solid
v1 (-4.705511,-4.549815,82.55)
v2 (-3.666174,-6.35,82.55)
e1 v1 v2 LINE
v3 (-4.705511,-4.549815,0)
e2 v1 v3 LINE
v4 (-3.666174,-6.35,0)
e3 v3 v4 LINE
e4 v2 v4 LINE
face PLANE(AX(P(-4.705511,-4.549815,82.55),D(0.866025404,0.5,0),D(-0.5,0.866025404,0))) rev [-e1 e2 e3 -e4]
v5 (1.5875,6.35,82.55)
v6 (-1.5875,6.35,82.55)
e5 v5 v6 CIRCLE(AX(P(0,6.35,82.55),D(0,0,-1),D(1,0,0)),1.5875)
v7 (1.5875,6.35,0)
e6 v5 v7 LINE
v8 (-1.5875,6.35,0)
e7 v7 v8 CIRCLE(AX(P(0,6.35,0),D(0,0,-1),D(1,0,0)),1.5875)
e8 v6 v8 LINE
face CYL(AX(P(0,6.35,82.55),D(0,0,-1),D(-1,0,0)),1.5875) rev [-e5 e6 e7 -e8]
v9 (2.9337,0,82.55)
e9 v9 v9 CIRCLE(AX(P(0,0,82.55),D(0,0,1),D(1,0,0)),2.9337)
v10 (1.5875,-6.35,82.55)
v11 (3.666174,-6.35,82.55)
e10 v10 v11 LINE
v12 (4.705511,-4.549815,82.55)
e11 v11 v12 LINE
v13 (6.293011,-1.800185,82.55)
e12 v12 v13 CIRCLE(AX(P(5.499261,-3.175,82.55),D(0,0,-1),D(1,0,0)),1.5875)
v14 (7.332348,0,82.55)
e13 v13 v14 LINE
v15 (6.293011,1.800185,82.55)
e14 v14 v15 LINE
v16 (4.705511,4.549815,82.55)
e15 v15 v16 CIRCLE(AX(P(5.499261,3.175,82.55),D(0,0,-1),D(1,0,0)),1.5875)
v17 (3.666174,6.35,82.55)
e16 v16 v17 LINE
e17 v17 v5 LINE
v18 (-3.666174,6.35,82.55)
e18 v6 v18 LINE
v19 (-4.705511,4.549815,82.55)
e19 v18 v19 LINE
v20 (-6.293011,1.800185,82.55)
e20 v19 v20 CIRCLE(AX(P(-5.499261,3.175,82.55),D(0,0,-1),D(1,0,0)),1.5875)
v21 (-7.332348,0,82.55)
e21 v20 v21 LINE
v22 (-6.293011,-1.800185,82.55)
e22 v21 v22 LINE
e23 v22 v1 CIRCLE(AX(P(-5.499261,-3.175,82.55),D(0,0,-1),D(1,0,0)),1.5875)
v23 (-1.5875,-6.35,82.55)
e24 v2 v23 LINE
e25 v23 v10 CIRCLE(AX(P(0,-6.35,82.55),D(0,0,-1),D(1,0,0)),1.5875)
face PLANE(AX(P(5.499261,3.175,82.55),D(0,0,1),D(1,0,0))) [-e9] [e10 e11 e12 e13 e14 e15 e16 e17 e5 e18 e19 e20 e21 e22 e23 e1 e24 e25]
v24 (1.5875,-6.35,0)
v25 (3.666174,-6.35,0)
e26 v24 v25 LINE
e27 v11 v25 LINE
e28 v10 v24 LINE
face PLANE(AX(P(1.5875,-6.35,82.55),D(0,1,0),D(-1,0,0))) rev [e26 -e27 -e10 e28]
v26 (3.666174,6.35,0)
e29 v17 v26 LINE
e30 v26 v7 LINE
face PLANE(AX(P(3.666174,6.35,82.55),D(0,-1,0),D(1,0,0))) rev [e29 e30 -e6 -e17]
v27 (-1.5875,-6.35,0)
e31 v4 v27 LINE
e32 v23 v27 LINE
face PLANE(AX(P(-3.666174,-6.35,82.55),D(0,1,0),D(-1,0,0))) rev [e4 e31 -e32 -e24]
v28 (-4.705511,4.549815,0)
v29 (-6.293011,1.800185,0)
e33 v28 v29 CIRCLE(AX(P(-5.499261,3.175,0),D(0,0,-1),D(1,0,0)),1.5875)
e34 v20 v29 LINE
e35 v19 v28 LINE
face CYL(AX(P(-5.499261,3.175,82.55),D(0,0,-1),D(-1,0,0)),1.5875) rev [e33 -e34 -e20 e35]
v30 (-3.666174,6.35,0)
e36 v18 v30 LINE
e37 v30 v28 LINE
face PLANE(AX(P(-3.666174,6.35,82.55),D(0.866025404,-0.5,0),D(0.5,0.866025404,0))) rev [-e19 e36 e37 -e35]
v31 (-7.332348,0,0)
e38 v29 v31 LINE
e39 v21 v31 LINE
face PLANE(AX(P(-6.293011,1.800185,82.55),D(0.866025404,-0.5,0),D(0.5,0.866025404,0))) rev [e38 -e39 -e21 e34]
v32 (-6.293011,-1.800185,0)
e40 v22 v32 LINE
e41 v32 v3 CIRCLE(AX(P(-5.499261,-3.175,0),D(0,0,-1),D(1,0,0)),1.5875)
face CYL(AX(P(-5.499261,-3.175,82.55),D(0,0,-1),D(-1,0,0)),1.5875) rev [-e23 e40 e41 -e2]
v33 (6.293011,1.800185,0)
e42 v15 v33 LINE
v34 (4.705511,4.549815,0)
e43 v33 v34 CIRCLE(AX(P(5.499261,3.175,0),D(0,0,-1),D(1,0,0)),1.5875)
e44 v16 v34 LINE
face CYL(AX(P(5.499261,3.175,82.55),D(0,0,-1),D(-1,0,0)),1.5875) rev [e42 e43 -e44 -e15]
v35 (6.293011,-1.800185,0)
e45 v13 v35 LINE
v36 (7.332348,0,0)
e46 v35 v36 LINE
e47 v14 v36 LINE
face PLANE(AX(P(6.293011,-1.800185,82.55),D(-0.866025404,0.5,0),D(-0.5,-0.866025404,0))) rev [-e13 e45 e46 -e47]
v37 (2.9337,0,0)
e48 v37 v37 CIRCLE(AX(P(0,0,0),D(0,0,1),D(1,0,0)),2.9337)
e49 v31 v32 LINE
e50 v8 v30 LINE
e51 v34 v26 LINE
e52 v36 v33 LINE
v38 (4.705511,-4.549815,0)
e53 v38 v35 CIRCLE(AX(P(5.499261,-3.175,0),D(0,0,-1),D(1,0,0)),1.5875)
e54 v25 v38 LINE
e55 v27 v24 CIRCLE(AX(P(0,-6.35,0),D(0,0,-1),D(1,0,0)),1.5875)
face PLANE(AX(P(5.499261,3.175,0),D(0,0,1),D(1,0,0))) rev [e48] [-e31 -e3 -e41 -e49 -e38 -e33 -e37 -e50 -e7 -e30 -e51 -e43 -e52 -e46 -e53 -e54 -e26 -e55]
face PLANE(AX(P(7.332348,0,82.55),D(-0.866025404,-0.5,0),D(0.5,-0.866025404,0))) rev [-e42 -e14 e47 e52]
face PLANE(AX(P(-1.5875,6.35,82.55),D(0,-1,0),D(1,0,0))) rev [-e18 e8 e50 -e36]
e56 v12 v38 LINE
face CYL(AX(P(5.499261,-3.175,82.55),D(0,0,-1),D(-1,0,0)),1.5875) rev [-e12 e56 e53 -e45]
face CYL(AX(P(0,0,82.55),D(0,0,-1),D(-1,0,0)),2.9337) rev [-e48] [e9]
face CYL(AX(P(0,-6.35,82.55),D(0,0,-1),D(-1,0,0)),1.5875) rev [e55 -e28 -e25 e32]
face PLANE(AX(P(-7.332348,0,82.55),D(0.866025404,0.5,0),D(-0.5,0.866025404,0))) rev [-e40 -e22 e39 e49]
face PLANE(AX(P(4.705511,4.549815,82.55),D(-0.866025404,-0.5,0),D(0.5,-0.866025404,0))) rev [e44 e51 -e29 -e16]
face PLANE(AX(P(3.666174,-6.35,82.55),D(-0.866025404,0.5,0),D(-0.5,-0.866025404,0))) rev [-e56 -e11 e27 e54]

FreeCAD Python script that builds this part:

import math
import FreeCAD as App
import Part
import Sketcher

V = App.Vector
Q = App.Units.Quantity

doc = App.newDocument("Part")
body = doc.addObject("PartDesign::Body", "Body")

# Sketch on XY plane
sketch1 = doc.addObject("Sketcher::SketchObject", "Sketch")
body.addObject(sketch1)
sketch1.AttachmentSupport = (doc.XY_Plane, [""])
sketch1.MapMode = "FlatFace"
sketch1.addGeometry(Part.LineSegment(V(-4.705511, -4.549815, 0), V(-3.666174, -6.35, 0)), False)
sketch1.addGeometry(Part.LineSegment(V(-3.666174, -6.35, 0), V(-1.5875, -6.35, 0)), False)
sketch1.addGeometry(Part.ArcOfCircle(Part.Circle(V(0, -6.35, 0), V(0, 0, 1), 1.5875), math.radians(0), math.radians(180)), False)
sketch1.addGeometry(Part.LineSegment(V(1.5875, -6.35, 0), V(3.666174, -6.35, 0)), False)
sketch1.addGeometry(Part.LineSegment(V(3.666174, -6.35, 0), V(4.705511, -4.549815, 0)), False)
sketch1.addGeometry(Part.ArcOfCircle(Part.Circle(V(5.499261, -3.175, 0), V(0, 0, 1), 1.5875), math.radians(60), math.radians(240)), False)
sketch1.addGeometry(Part.LineSegment(V(6.293011, -1.800185, 0), V(7.332348, 0, 0)), False)
sketch1.addGeometry(Part.LineSegment(V(7.332348, 0, 0), V(6.293011, 1.800185, 0)), False)
sketch1.addGeometry(Part.ArcOfCircle(Part.Circle(V(5.499261, 3.175, 0), V(0, 0, 1), 1.5875), math.radians(120), math.radians(300)), False)
sketch1.addGeometry(Part.LineSegment(V(4.705511, 4.549815, 0), V(3.666174, 6.35, 0)), False)
sketch1.addGeometry(Part.LineSegment(V(3.666174, 6.35, 0), V(1.5875, 6.35, 0)), False)
sketch1.addGeometry(Part.ArcOfCircle(Part.Circle(V(0, 6.35, 0), V(0, 0, 1), 1.5875), math.radians(180), math.radians(360)), False)
sketch1.addGeometry(Part.LineSegment(V(-1.5875, 6.35, 0), V(-3.666174, 6.35, 0)), False)
sketch1.addGeometry(Part.LineSegment(V(-3.666174, 6.35, 0), V(-4.705511, 4.549815, 0)), False)
sketch1.addGeometry(Part.ArcOfCircle(Part.Circle(V(-5.499261, 3.175, 0), V(0, 0, 1), 1.5875), math.radians(-120), math.radians(60)), False)
sketch1.addGeometry(Part.LineSegment(V(-6.293011, 1.800185, 0), V(-7.332348, 0, 0)), False)
sketch1.addGeometry(Part.LineSegment(V(-7.332348, 0, 0), V(-6.293011, -1.800185, 0)), False)
sketch1.addGeometry(Part.ArcOfCircle(Part.Circle(V(-5.499261, -3.175, 0), V(0, 0, 1), 1.5875), math.radians(-60), math.radians(120)), False)
sketch1.addGeometry(Part.Circle(V(0, 0, 0), V(0, 0, 1), 2.9337), False)
sketch1.addConstraint(Sketcher.Constraint("Coincident", 0, 2, 1, 1))
sketch1.addConstraint(Sketcher.Constraint("Coincident", 1, 2, 2, 2))
sketch1.addConstraint(Sketcher.Constraint("Coincident", 2, 1, 3, 1))
sketch1.addConstraint(Sketcher.Constraint("Coincident", 3, 2, 4, 1))
sketch1.addConstraint(Sketcher.Constraint("Coincident", 4, 2, 5, 2))
sketch1.addConstraint(Sketcher.Constraint("Coincident", 5, 1, 6, 1))
sketch1.addConstraint(Sketcher.Constraint("Coincident", 6, 2, 7, 1))
sketch1.addConstraint(Sketcher.Constraint("Coincident", 7, 2, 8, 2))
sketch1.addConstraint(Sketcher.Constraint("Coincident", 8, 1, 9, 1))
sketch1.addConstraint(Sketcher.Constraint("Coincident", 9, 2, 10, 1))
sketch1.addConstraint(Sketcher.Constraint("Coincident", 10, 2, 11, 2))
sketch1.addConstraint(Sketcher.Constraint("Coincident", 11, 1, 12, 1))
sketch1.addConstraint(Sketcher.Constraint("Coincident", 12, 2, 13, 1))
sketch1.addConstraint(Sketcher.Constraint("Coincident", 13, 2, 14, 2))
sketch1.addConstraint(Sketcher.Constraint("Coincident", 14, 1, 15, 1))
sketch1.addConstraint(Sketcher.Constraint("Coincident", 15, 2, 16, 1))
sketch1.addConstraint(Sketcher.Constraint("Coincident", 16, 2, 17, 2))
sketch1.addConstraint(Sketcher.Constraint("Coincident", 17, 1, 0, 1))
sketch1.addConstraint(Sketcher.Constraint("Horizontal", 1))
sketch1.addConstraint(Sketcher.Constraint("Horizontal", 3))
sketch1.addConstraint(Sketcher.Constraint("Horizontal", 10))
sketch1.addConstraint(Sketcher.Constraint("Horizontal", 12))
sketch1.addConstraint(Sketcher.Constraint("Coincident", 18, 3, -1, 1))
sketch1.addConstraint(Sketcher.Constraint("Equal", 2, 5))
sketch1.addConstraint(Sketcher.Constraint("Equal", 5, 8))
sketch1.addConstraint(Sketcher.Constraint("Equal", 8, 11))
sketch1.addConstraint(Sketcher.Constraint("Equal", 11, 14))
sketch1.addConstraint(Sketcher.Constraint("Equal", 14, 17))
sketch1.addConstraint(Sketcher.Constraint("Symmetric", 2, 3, 11, 3, -1, 1))
sketch1.addConstraint(Sketcher.Constraint("Symmetric", 5, 3, 14, 3, -1, 1))
sketch1.addConstraint(Sketcher.Constraint("Symmetric", 8, 3, 17, 3, -1, 1))
sketch1.addConstraint(Sketcher.Constraint("Symmetric", 0, 2, 9, 2, -1, 1))
sketch1.addConstraint(Sketcher.Constraint("Symmetric", 3, 2, 12, 2, -1, 1))
sketch1.addConstraint(Sketcher.Constraint("Symmetric", 6, 2, 15, 2, -1, 1))
sketch1.addConstraint(Sketcher.Constraint("Symmetric", 8, 3, 14, 3, -2))
sketch1.addConstraint(Sketcher.Constraint("Symmetric", 1, 2, 2, 1, -2))
sketch1.addConstraint(Sketcher.Constraint("PointOnObject", 6, 2, -1))
sketch1.addConstraint(Sketcher.Constraint("Parallel", 4, 6))
sketch1.addConstraint(Sketcher.Constraint("Parallel", 0, 7))
sketch1.addConstraint(Sketcher.Constraint("Parallel", 7, 9))
sketch1.addConstraint(Sketcher.Constraint("Parallel", 6, 13))
sketch1.addConstraint(Sketcher.Constraint("Parallel", 13, 15))
sketch1.addConstraint(Sketcher.Constraint("Parallel", 9, 16))
sketch1.addConstraint(Sketcher.Constraint("Horizontal", 2, 3, 0, 2))
sketch1.addConstraint(Sketcher.Constraint("Horizontal", 8, 1, 13, 2))
sketch1.addConstraint(Sketcher.Constraint("Horizontal", 7, 2, 14, 1))
sketch1.addConstraint(Sketcher.Constraint("Equal", 4, 6))
sketch1.addConstraint(Sketcher.Constraint("Diameter", 18, Q("0.231 in")))
sketch1.addConstraint(Sketcher.Constraint("Angle", 0, Q("-60 deg")))
sketch1.addConstraint(Sketcher.Constraint("Radius", 2, Q("0.0625 in")))
sketch1.addConstraint(Sketcher.Constraint("DistanceY", 2, 3, 11, 3, Q("0.5 in")))
sketch1.addConstraint(Sketcher.Constraint("DistanceY", 5, 3, 8, 3, Q("0.25 in")))
sketch1.addConstraint(Sketcher.Constraint("DistanceX", 4, 2, 5, 3, Q("0.03125 in")))
sketch1.addConstraint(Sketcher.Constraint("DistanceX", 1, 1, 1, 2, 2.078674))
pad1 = doc.addObject("PartDesign::Pad", "Pad")
body.addObject(pad1)
pad1.Profile = sketch1
pad1.Length = Q("3.25 in")

doc.recompute()
